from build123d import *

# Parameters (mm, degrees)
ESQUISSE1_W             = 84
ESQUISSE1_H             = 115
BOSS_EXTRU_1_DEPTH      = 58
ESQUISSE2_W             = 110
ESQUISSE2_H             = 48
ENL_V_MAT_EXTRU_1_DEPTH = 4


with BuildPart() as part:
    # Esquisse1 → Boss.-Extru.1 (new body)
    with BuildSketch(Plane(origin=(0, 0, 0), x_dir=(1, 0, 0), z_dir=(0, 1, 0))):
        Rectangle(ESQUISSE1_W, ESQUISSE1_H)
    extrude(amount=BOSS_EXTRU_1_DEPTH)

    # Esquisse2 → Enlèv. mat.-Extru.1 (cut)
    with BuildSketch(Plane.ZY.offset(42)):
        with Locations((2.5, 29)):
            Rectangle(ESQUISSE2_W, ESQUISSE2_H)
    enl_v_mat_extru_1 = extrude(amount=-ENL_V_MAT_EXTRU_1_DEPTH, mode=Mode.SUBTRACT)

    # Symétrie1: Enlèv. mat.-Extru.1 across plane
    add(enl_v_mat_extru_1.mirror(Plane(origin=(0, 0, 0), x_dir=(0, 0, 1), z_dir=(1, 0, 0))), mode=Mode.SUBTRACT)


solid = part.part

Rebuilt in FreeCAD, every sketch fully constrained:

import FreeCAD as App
import Part
import Sketcher
from FreeCAD import Vector
Q = App.Units.Quantity

doc = App.newDocument("Part")
body = doc.addObject("PartDesign::Body", "Body")

sketch1 = body.newObject("Sketcher::SketchObject", "Sketch")
sketch1.AttachmentSupport = (doc.getObject("XZ_Plane"), [""])
sketch1.MapMode = "FlatFace"
sketch1.addGeometry([
    Part.LineSegment(Vector(-42, -57.5, 0), Vector(-42, 57.5, 0)),
    Part.LineSegment(Vector(-42, 57.5, 0), Vector(42, 57.5, 0)),
    Part.LineSegment(Vector(42, 57.5, 0), Vector(42, -57.5, 0)),
    Part.LineSegment(Vector(42, -57.5, 0), Vector(-42, -57.5, 0)),
], False)
sketch1.addConstraint([
    Sketcher.Constraint("Coincident", 0, 2, 1, 1),
    Sketcher.Constraint("Coincident", 1, 2, 2, 1),
    Sketcher.Constraint("Coincident", 2, 2, 3, 1),
    Sketcher.Constraint("Coincident", 3, 2, 0, 1),
    Sketcher.Constraint("Vertical", 0),
    Sketcher.Constraint("Horizontal", 1),
    Sketcher.Constraint("Vertical", 2),
    Sketcher.Constraint("Horizontal", 3),
    Sketcher.Constraint("Symmetric", 0, 2, 2, 2, -1, 1),
    Sketcher.Constraint("DistanceX", 1, 1, 1, 2, Q("84 mm")),
    Sketcher.Constraint("DistanceY", 0, 1, 0, 2, Q("115 mm")),
])
pad1 = body.newObject("PartDesign::Pad", "Pad")
pad1.Profile = sketch1
pad1.Length = 58
pad1.Reversed = True

sketch2 = body.newObject("Sketcher::SketchObject", "Sketch001")
sketch2.AttachmentSupport = (doc.getObject("YZ_Plane"), [""])
sketch2.MapMode = "FlatFace"
sketch2.AttachmentOffset = App.Placement(Vector(0, 0, -42), App.Rotation())
sketch2.addGeometry([
    Part.LineSegment(Vector(53, -52.5, 0), Vector(5, -52.5, 0)),
    Part.LineSegment(Vector(5, -52.5, 0), Vector(5, 57.5, 0)),
    Part.LineSegment(Vector(5, 57.5, 0), Vector(53, 57.5, 0)),
    Part.LineSegment(Vector(53, 57.5, 0), Vector(53, -52.5, 0)),
], False)
sketch2.addConstraint([
    Sketcher.Constraint("Coincident", 0, 2, 1, 1),
    Sketcher.Constraint("Coincident", 1, 2, 2, 1),
    Sketcher.Constraint("Coincident", 2, 2, 3, 1),
    Sketcher.Constraint("Coincident", 3, 2, 0, 1),
    Sketcher.Constraint("Horizontal", 0),
    Sketcher.Constraint("Vertical", 1),
    Sketcher.Constraint("Horizontal", 2),
    Sketcher.Constraint("Vertical", 3),
    Sketcher.Constraint("DistanceX", 0, 2, 0, 1, Q("48 mm")),
    Sketcher.Constraint("DistanceY", 1, 1, 1, 2, Q("110 mm")),
    Sketcher.Constraint("DistanceX", -1, 1, 0, 2, Q("5 mm")),
    Sketcher.Constraint("DistanceY", 0, 2, -1, 1, Q("52.5 mm")),
])
pocket1 = body.newObject("PartDesign::Pocket", "Pocket")
pocket1.Profile = sketch2
pocket1.Length = 4
pocket1.Reversed = True
doc.recompute()

mirrored = body.newObject("PartDesign::Mirrored", "Mirrored")
mirrored.Originals = [pocket1]
mirrored.MirrorPlane = (doc.getObject("YZ_Plane"), [""])
body.Tip = mirrored

doc.recompute()
